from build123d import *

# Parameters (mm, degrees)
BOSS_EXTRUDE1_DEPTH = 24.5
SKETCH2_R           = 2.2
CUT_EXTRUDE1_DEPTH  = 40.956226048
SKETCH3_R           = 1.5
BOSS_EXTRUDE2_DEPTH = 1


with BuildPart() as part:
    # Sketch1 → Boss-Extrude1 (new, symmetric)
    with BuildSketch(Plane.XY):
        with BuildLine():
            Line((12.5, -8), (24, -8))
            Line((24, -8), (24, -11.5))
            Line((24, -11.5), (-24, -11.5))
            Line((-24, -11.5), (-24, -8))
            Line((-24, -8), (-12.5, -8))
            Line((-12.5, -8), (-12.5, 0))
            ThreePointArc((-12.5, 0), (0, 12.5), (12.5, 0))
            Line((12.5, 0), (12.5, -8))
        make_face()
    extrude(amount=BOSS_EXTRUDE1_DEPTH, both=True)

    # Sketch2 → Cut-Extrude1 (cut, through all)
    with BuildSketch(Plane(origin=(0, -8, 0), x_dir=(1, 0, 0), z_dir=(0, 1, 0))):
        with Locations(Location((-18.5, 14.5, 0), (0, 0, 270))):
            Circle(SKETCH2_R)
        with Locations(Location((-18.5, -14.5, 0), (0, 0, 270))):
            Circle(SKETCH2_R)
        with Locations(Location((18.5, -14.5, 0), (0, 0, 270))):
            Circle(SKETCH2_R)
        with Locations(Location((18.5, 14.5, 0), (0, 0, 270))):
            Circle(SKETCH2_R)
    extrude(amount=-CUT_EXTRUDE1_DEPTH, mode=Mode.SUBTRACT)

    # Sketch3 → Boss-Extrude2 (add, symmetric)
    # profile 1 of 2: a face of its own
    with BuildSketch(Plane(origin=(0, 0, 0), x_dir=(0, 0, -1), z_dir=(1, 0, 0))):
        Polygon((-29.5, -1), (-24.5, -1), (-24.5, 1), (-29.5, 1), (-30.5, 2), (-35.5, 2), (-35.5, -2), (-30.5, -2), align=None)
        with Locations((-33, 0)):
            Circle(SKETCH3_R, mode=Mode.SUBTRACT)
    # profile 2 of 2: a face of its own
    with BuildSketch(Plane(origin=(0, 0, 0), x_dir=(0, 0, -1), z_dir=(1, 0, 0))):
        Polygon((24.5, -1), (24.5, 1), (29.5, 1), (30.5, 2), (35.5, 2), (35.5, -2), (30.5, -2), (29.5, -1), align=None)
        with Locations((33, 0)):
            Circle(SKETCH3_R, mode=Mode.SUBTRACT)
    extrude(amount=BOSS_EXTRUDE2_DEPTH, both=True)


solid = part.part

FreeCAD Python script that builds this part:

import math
import FreeCAD as App
import Part
import Sketcher

V = App.Vector


def add_polygon(sketch, points):
    """Adds a closed chain of lines whose ends are joined by coincident constraints."""
    first, n = sketch.GeometryCount, len(points)
    for a, b in zip(points, points[1:] + points[:1]):
        sketch.addGeometry(Part.LineSegment(App.Vector(*a, 0), App.Vector(*b, 0)), False)
    for i in range(n):
        sketch.addConstraint(Sketcher.Constraint("Coincident", first + i, 2, first + (i + 1) % n, 1))

doc = App.newDocument("Part")
params = doc.addObject("Spreadsheet::Sheet", "Params")
for row, (alias, value) in enumerate([
    ("sketch1_radius", "12.5 mm"),
    ("sketch1_width", "48 mm"),
    ("sketch1_height", "8 mm"),
    ("sketch1_height2", "3.5 mm"),
    ("pad1_length", "49 mm"),
    ("sketch2_diameter", "4.4 mm"),
    ("sketch3_diameter", "3 mm"),
    ("sketch3_width", "2 mm"),
    ("sketch3_width2", "4 mm"),
    ("sketch3_height", "5 mm"),
    ("pad2_length", "2 mm"),
], start=1):
    params.set(f"A{row}", alias)
    params.set(f"B{row}", "=" + value)
    params.setAlias(f"B{row}", alias)

body = doc.addObject("PartDesign::Body", "Body")

# Sketch on XY plane
sketch1 = body.newObject("Sketcher::SketchObject", "Sketch")
sketch1.AttachmentSupport = (doc.getObject("XY_Plane"), [""])
sketch1.MapMode = "FlatFace"
sketch1.addGeometry([
    Part.LineSegment(V(24, -8, 0), V(12.5, -8, 0)),  # 0
    Part.LineSegment(V(12.5, -8, 0), V(12.5, 0, 0)),  # 1
    Part.ArcOfCircle(Part.Circle(V(0, 0, 0), V(0, 0, 1), 12.5), math.radians(0), math.radians(180)),  # 2
    Part.LineSegment(V(-12.5, 0, 0), V(-12.5, -8, 0)),  # 3
    Part.LineSegment(V(-12.5, -8, 0), V(-24, -8, 0)),  # 4
    Part.LineSegment(V(-24, -8, 0), V(-24, -11.5, 0)),  # 5
    Part.LineSegment(V(-24, -11.5, 0), V(24, -11.5, 0)),  # 6
    Part.LineSegment(V(24, -11.5, 0), V(24, -8, 0)),  # 7
], False)
sketch1.addConstraint([
    Sketcher.Constraint("Coincident", 0, 2, 1, 1),
    Sketcher.Constraint("Tangent", 1, 2, 2, 1),
    Sketcher.Constraint("Tangent", 2, 2, 3, 1),
    Sketcher.Constraint("Coincident", 3, 2, 4, 1),
    Sketcher.Constraint("Coincident", 4, 2, 5, 1),
    Sketcher.Constraint("Coincident", 5, 2, 6, 1),
    Sketcher.Constraint("Coincident", 6, 2, 7, 1),
    Sketcher.Constraint("Coincident", 7, 2, 0, 1),
    Sketcher.Constraint("Horizontal", 0),
    Sketcher.Constraint("Vertical", 1),
    Sketcher.Constraint("Vertical", 3),
    Sketcher.Constraint("Horizontal", 4),
    Sketcher.Constraint("Vertical", 5),
    Sketcher.Constraint("Horizontal", 6),
    Sketcher.Constraint("Vertical", 7),
    Sketcher.Constraint("Coincident", 2, 3, -1, 1),
    Sketcher.Constraint("Symmetric", 4, 2, 7, 2, -2),
    Sketcher.Constraint("Radius", 2, 12.5),
    Sketcher.Constraint("DistanceX", 6, 1, 6, 2, 48.0),
    Sketcher.Constraint("DistanceY", 1, 1, 1, 2, 8.0),
    Sketcher.Constraint("DistanceY", 5, 2, 5, 1, 3.5),
])
sketch1.setExpression("Constraints[17]", "Params.sketch1_radius")
sketch1.setExpression("Constraints[18]", "Params.sketch1_width")
sketch1.setExpression("Constraints[19]", "Params.sketch1_height")
sketch1.setExpression("Constraints[20]", "Params.sketch1_height2")
pad1 = body.newObject("PartDesign::Pad", "Pad")
pad1.Profile = sketch1
pad1.setExpression("Length", "Params.pad1_length")
pad1.Midplane = True

# Sketch on XZ plane
sketch2 = body.newObject("Sketcher::SketchObject", "Sketch001")
sketch2.AttachmentSupport = (doc.getObject("XZ_Plane"), [""])
sketch2.MapMode = "FlatFace"
sketch2.AttachmentOffset = App.Placement(V(0, 0, 8), App.Rotation())
sketch2.addGeometry([
    Part.Circle(V(-18.5, -14.5, 0), V(0, 0, 1), 2.2),
    Part.Circle(V(-18.5, 14.5, 0), V(0, 0, 1), 2.2),
    Part.Circle(V(18.5, 14.5, 0), V(0, 0, 1), 2.2),
    Part.Circle(V(18.5, -14.5, 0), V(0, 0, 1), 2.2),
], False)
sketch2.addConstraint([
    Sketcher.Constraint("Equal", 0, 1),
    Sketcher.Constraint("Equal", 1, 2),
    Sketcher.Constraint("Equal", 2, 3),
    Sketcher.Constraint("Symmetric", 0, 3, 2, 3, -1, 1),
    Sketcher.Constraint("Symmetric", 1, 3, 3, 3, -1, 1),
    Sketcher.Constraint("Symmetric", 1, 3, 2, 3, -2),
    Sketcher.Constraint("Diameter", 0, 4.4),
    Sketcher.Constraint("DistanceY", 0, 3, 1, 3, 29.0),
    Sketcher.Constraint("DistanceX", 1, 3, 2, 3, 37.0),
])
sketch2.setExpression("Constraints[6]", "Params.sketch2_diameter")
pocket1 = body.newObject("PartDesign::Pocket", "Pocket")
pocket1.Profile = sketch2
pocket1.Type = "ThroughAll"
pocket1.Reversed = True

# Sketch on YZ plane
sketch3 = body.newObject("Sketcher::SketchObject", "Sketch002")
sketch3.AttachmentSupport = (doc.getObject("YZ_Plane"), [""])
sketch3.MapMode = "FlatFace"
add_polygon(sketch3, [(-1, 29.5), (-1, 24.5), (1, 24.5), (1, 29.5), (2, 30.5), (2, 35.5), (-2, 35.5), (-2, 30.5)])  # lines 0-7
sketch3.addGeometry(Part.Circle(V(0, 33, 0), V(0, 0, 1), 1.5), False)  # 8
add_polygon(sketch3, [(1, -24.5), (-1, -24.5), (-1, -29.5), (-2, -30.5), (-2, -35.5), (2, -35.5), (2, -30.5), (1, -29.5)])  # lines 9-16
sketch3.addGeometry(Part.Circle(V(0, -33, 0), V(0, 0, 1), 1.5), False)  # 17
sketch3.addConstraint([
    Sketcher.Constraint("Vertical", 0),
    Sketcher.Constraint("Horizontal", 1),
    Sketcher.Constraint("Vertical", 2),
    Sketcher.Constraint("Vertical", 4),
    Sketcher.Constraint("Horizontal", 5),
    Sketcher.Constraint("Vertical", 6),
    Sketcher.Constraint("Horizontal", 9),
    Sketcher.Constraint("Vertical", 10),
    Sketcher.Constraint("Vertical", 12),
    Sketcher.Constraint("Horizontal", 13),
    Sketcher.Constraint("Vertical", 14),
    Sketcher.Constraint("Vertical", 16),
    Sketcher.Constraint("Equal", 8, 17),
    Sketcher.Constraint("Symmetric", 8, 3, 17, 3, -1, 1),
    Sketcher.Constraint("Symmetric", 1, 2, 9, 2, -1, 1),
    Sketcher.Constraint("Symmetric", 3, 2, 11, 2, -1, 1),
    Sketcher.Constraint("Symmetric", 5, 2, 13, 2, -1, 1),
    Sketcher.Constraint("Symmetric", 7, 2, 15, 2, -1, 1),
    Sketcher.Constraint("Symmetric", 3, 2, 6, 2, -2),
    Sketcher.Constraint("Symmetric", 2, 2, 7, 2, -2),
    Sketcher.Constraint("PointOnObject", 8, 3, -2),
    Sketcher.Constraint("Perpendicular", 3, 7),
    Sketcher.Constraint("Perpendicular", 7, 11),
    Sketcher.Constraint("Perpendicular", 11, 15),
    Sketcher.Constraint("Equal", 2, 4),
    Sketcher.Constraint("Diameter", 8, 3.0),
    Sketcher.Constraint("DistanceX", 1, 1, 1, 2, 2.0),
    Sketcher.Constraint("DistanceX", 5, 2, 5, 1, 4.0),
    Sketcher.Constraint("DistanceY", 0, 2, 0, 1, 5.0),
    Sketcher.Constraint("DistanceY", -1, 1, 8, 3, 33.0),
    Sketcher.Constraint("DistanceY", 9, 2, 0, 2, 49.0),
])
sketch3.setExpression("Constraints[41]", "Params.sketch3_diameter")
sketch3.setExpression("Constraints[42]", "Params.sketch3_width")
sketch3.setExpression("Constraints[43]", "Params.sketch3_width2")
sketch3.setExpression("Constraints[44]", "Params.sketch3_height")
pad2 = body.newObject("PartDesign::Pad", "Pad001")
pad2.Profile = sketch3
pad2.setExpression("Length", "Params.pad2_length")
pad2.Midplane = True

doc.recompute()
